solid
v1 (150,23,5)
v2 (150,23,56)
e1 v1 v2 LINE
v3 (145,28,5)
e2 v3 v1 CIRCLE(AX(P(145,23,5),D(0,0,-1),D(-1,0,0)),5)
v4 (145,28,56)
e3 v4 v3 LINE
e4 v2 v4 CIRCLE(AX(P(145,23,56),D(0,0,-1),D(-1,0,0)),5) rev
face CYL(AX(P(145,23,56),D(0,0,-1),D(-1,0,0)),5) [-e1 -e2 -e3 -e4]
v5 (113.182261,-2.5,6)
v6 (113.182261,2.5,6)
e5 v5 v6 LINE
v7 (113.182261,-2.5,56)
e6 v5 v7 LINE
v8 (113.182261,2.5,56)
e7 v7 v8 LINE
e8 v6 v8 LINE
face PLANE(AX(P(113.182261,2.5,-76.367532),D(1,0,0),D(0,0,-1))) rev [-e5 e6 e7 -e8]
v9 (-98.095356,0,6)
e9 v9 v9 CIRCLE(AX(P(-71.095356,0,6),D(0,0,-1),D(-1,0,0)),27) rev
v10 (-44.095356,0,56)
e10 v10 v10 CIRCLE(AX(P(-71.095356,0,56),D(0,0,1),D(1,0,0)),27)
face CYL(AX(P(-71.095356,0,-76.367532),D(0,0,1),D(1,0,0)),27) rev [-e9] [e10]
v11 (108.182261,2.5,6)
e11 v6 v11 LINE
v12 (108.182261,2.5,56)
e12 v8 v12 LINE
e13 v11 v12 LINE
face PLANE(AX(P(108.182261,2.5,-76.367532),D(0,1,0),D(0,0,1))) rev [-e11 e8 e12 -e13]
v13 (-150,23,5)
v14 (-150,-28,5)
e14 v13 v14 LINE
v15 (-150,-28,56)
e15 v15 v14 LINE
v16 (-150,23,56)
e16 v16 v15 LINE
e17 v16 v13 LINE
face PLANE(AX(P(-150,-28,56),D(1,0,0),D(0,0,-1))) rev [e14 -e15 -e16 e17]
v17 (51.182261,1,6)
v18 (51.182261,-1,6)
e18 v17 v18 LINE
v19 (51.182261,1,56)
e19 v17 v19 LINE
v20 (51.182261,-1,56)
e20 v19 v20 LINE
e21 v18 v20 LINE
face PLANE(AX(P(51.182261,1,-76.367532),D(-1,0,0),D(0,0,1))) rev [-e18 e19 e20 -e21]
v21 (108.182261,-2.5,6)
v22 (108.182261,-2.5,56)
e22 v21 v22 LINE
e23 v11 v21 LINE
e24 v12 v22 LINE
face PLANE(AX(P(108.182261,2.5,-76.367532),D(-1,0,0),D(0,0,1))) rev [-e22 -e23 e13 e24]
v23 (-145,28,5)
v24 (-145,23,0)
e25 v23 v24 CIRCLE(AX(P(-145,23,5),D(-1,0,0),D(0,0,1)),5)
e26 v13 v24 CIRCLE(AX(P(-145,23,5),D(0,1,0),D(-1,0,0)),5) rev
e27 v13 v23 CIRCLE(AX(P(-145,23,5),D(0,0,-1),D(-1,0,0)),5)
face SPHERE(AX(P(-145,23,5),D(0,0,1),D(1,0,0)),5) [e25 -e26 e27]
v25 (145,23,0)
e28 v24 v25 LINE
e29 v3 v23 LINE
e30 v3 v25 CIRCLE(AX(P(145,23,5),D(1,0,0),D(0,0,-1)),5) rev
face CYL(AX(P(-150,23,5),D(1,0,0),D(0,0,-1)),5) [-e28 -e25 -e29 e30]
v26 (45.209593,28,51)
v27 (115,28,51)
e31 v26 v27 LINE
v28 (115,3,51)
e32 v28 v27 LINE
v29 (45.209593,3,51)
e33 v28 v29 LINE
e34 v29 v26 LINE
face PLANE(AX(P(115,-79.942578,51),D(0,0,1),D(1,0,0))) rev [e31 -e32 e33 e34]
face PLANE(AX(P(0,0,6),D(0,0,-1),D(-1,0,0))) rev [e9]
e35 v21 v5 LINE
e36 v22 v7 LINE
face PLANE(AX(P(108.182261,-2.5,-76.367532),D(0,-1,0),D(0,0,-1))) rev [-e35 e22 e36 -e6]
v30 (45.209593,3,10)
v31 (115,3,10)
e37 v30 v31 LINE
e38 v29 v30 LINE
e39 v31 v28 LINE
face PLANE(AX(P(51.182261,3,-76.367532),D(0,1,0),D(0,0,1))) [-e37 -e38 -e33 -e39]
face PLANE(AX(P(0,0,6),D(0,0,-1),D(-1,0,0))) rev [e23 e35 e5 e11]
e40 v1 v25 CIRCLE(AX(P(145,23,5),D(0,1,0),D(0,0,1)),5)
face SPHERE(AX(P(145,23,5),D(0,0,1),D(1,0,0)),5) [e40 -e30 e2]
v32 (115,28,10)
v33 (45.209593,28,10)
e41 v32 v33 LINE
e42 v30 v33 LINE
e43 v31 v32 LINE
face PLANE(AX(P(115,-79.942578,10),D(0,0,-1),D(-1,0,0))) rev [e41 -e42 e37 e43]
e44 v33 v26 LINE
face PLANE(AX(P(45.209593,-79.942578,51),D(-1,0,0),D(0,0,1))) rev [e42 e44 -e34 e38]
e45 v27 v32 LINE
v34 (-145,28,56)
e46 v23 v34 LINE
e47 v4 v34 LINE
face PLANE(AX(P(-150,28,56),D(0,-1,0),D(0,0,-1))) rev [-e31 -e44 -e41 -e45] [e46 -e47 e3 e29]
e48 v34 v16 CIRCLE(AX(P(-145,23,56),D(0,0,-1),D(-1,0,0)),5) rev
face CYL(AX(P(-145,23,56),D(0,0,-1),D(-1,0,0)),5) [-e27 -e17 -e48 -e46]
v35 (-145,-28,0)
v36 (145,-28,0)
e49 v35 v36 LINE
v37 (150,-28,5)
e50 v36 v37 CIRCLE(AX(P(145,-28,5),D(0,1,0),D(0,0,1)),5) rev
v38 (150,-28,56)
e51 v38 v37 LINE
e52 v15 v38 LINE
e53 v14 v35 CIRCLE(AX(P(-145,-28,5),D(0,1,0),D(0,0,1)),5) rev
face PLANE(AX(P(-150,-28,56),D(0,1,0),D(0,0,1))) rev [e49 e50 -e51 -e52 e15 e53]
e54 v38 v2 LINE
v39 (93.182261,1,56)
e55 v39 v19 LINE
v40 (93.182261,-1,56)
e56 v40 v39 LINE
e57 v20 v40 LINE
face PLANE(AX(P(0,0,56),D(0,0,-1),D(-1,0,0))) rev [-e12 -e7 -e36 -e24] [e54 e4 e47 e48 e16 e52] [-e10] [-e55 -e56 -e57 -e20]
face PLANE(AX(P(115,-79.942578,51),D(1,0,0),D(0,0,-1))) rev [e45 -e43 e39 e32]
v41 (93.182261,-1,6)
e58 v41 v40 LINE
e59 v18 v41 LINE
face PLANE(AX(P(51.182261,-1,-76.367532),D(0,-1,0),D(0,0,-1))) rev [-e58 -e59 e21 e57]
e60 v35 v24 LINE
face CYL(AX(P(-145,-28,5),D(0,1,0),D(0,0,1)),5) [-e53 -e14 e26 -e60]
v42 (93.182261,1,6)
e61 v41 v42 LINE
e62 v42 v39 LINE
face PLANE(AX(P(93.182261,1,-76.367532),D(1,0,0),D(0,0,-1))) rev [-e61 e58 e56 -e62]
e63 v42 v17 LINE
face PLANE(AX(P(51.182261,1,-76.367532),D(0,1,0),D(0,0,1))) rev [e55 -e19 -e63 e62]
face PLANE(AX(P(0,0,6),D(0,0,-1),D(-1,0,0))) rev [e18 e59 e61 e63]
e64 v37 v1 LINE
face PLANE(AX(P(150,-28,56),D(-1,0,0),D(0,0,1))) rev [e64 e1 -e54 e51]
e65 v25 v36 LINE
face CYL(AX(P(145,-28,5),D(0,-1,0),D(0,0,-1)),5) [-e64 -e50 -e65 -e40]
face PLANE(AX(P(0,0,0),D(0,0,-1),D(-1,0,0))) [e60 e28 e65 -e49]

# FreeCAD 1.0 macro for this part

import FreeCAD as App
import Part
import Sketcher
Q = App.Units.Quantity


def edges_at(feature, points):
    """Names of the edges that pass closest to the given points."""
    edges = feature.Shape.Edges
    near = lambda p: min(range(len(edges)), key=lambda i: edges[i].distToShape(Part.Vertex(*p))[0])
    return sorted({f"Edge{near(p) + 1}" for p in points})


def add_polygon(sketch, points):
    """Adds a closed chain of lines whose ends are joined by coincident constraints."""
    first, n = sketch.GeometryCount, len(points)
    for a, b in zip(points, points[1:] + points[:1]):
        sketch.addGeometry(Part.LineSegment(App.Vector(*a, 0), App.Vector(*b, 0)), False)
    for i in range(n):
        sketch.addConstraint(Sketcher.Constraint("Coincident", first + i, 2, first + (i + 1) % n, 1))

doc = App.newDocument("Part")
body = doc.addObject("PartDesign::Body", "Body")

# Sketch on XY plane
sketch1 = doc.addObject("Sketcher::SketchObject", "Sketch")
body.addObject(sketch1)
sketch1.AttachmentSupport = (doc.XY_Plane, [""])
sketch1.MapMode = "FlatFace"
add_polygon(sketch1, [(-150, 28), (-150, -28), (150, -28), (150, 28)])  # lines 0-3
sketch1.addConstraint(Sketcher.Constraint("Vertical", 0))
sketch1.addConstraint(Sketcher.Constraint("Horizontal", 1))
sketch1.addConstraint(Sketcher.Constraint("Vertical", 2))
sketch1.addConstraint(Sketcher.Constraint("Horizontal", 3))
sketch1.addConstraint(Sketcher.Constraint("Symmetric", 0, 2, 2, 2, -1, 1))
sketch1.addConstraint(Sketcher.Constraint("DistanceX", 1, 1, 1, 2, Q("300 mm")))
sketch1.addConstraint(Sketcher.Constraint("DistanceY", 0, 2, 0, 1, Q("56 mm")))
pad1 = doc.addObject("PartDesign::Pad", "Pad")
body.addObject(pad1)
pad1.Profile = sketch1
pad1.Length = 56
doc.recompute()

fillet = doc.addObject("PartDesign::Fillet", "Fillet")
body.addObject(fillet)
fillet.Base = (pad1, edges_at(pad1, [
    (-150, 0, 0),
    (0, 28, 0),
    (150, 0, 0),
    (-150, 28, 28),
    (150, 28, 28),
]))
fillet.Radius = 5

# Sketch on XY plane
sketch2 = doc.addObject("Sketcher::SketchObject", "Sketch001")
body.addObject(sketch2)
sketch2.AttachmentSupport = (doc.XY_Plane, [""])
sketch2.MapMode = "FlatFace"
sketch2.AttachmentOffset = App.Placement(App.Vector(0, 0, 56), App.Rotation())
sketch2.addGeometry(Part.Circle(App.Vector(-71.1, 0, 0), App.Vector(0, 0, 1), 27), False)  # 0
add_polygon(sketch2, [(51.2, 1), (51.2, -1), (93.2, -1), (93.2, 1)])  # lines 1-4
add_polygon(sketch2, [(108.2, 2.5), (108.2, -2.5), (113.2, -2.5), (113.2, 2.5)])  # lines 5-8
sketch2.addConstraint(Sketcher.Constraint("Vertical", 1))
sketch2.addConstraint(Sketcher.Constraint("Horizontal", 2))
sketch2.addConstraint(Sketcher.Constraint("Vertical", 3))
sketch2.addConstraint(Sketcher.Constraint("Horizontal", 4))
sketch2.addConstraint(Sketcher.Constraint("Vertical", 5))
sketch2.addConstraint(Sketcher.Constraint("Horizontal", 6))
sketch2.addConstraint(Sketcher.Constraint("Vertical", 7))
sketch2.addConstraint(Sketcher.Constraint("Horizontal", 8))
sketch2.addConstraint(Sketcher.Constraint("PointOnObject", 0, 3, -1))
sketch2.addConstraint(Sketcher.Constraint("Equal", 8, 5))
sketch2.addConstraint(Sketcher.Constraint("Diameter", 0, Q("54 mm")))
sketch2.addConstraint(Sketcher.Constraint("DistanceX", 2, 1, 2, 2, Q("42 mm")))
sketch2.addConstraint(Sketcher.Constraint("DistanceX", 6, 1, 6, 2, Q("5 mm")))
sketch2.addConstraint(Sketcher.Constraint("DistanceY", 1, 2, 1, 1, Q("2 mm")))
sketch2.addConstraint(Sketcher.Constraint("DistanceY", 1, 2, -1, 1, Q("1 mm")))
sketch2.addConstraint(Sketcher.Constraint("DistanceX", 2, 2, 5, 2, Q("15 mm")))
sketch2.addConstraint(Sketcher.Constraint("DistanceY", 5, 2, -1, 1, Q("2.5 mm")))
sketch2.addConstraint(Sketcher.Constraint("DistanceX", -1, 1, 1, 2, Q("51.182261 mm")))
sketch2.addConstraint(Sketcher.Constraint("DistanceX", 0, 3, -1, 1, Q("71.095356 mm")))
pocket1 = doc.addObject("PartDesign::Pocket", "Pocket")
body.addObject(pocket1)
pocket1.Profile = sketch2
pocket1.Length = 50

# Sketch on XZ plane
sketch3 = doc.addObject("Sketcher::SketchObject", "Sketch002")
body.addObject(sketch3)
sketch3.AttachmentSupport = (doc.XZ_Plane, [""])
sketch3.MapMode = "FlatFace"
sketch3.AttachmentOffset = App.Placement(App.Vector(0, 0, -28), App.Rotation())
add_polygon(sketch3, [(45, 10), (45, 51), (115, 51), (115, 10)])  # lines 0-3
sketch3.addConstraint(Sketcher.Constraint("Vertical", 0))
sketch3.addConstraint(Sketcher.Constraint("Horizontal", 1))
sketch3.addConstraint(Sketcher.Constraint("Vertical", 2))
sketch3.addConstraint(Sketcher.Constraint("Horizontal", 3))
sketch3.addConstraint(Sketcher.Constraint("DistanceY", 0, 1, 0, 2, Q("41 mm")))
sketch3.addConstraint(Sketcher.Constraint("DistanceY", -1, 1, 0, 2, Q("51 mm")))
sketch3.addConstraint(Sketcher.Constraint("DistanceX", -1, 1, 1, 2, Q("115 mm")))
sketch3.addConstraint(Sketcher.Constraint("DistanceX", 1, 1, 1, 2, Q("69.790407 mm")))
pocket2 = doc.addObject("PartDesign::Pocket", "Pocket001")
body.addObject(pocket2)
pocket2.Profile = sketch3
pocket2.Length = 25
pocket2.Reversed = True

doc.recompute()
